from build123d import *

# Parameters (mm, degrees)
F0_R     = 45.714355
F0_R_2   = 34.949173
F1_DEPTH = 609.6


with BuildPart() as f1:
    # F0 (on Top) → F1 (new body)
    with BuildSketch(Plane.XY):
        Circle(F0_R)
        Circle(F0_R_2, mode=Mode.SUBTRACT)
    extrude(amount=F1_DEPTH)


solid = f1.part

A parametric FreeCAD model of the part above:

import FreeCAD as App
import Part
import Sketcher

V = App.Vector
Q = App.Units.Quantity

doc = App.newDocument("Part")
body = doc.addObject("PartDesign::Body", "Body")

# Sketch on XY plane
sketch1 = doc.addObject("Sketcher::SketchObject", "Sketch")
body.addObject(sketch1)
sketch1.AttachmentSupport = (doc.XY_Plane, [""])
sketch1.MapMode = "FlatFace"
sketch1.addGeometry([
    Part.Circle(V(0, 0, 0), V(0, 0, 1), 46),
    Part.Circle(V(0, 0, 0), V(0, 0, 1), 35),
], False)
sketch1.addConstraint([
    Sketcher.Constraint("Coincident", 0, 3, -1, 1),
    Sketcher.Constraint("Coincident", 1, 3, -1, 1),
    Sketcher.Constraint("Diameter", 0, Q("91.42871 mm")),
    Sketcher.Constraint("Diameter", 1, Q("69.898346 mm")),
])
pad1 = doc.addObject("PartDesign::Pad", "Pad")
body.addObject(pad1)
pad1.Profile = sketch1
pad1.Length = Q("24 in")

doc.recompute()
